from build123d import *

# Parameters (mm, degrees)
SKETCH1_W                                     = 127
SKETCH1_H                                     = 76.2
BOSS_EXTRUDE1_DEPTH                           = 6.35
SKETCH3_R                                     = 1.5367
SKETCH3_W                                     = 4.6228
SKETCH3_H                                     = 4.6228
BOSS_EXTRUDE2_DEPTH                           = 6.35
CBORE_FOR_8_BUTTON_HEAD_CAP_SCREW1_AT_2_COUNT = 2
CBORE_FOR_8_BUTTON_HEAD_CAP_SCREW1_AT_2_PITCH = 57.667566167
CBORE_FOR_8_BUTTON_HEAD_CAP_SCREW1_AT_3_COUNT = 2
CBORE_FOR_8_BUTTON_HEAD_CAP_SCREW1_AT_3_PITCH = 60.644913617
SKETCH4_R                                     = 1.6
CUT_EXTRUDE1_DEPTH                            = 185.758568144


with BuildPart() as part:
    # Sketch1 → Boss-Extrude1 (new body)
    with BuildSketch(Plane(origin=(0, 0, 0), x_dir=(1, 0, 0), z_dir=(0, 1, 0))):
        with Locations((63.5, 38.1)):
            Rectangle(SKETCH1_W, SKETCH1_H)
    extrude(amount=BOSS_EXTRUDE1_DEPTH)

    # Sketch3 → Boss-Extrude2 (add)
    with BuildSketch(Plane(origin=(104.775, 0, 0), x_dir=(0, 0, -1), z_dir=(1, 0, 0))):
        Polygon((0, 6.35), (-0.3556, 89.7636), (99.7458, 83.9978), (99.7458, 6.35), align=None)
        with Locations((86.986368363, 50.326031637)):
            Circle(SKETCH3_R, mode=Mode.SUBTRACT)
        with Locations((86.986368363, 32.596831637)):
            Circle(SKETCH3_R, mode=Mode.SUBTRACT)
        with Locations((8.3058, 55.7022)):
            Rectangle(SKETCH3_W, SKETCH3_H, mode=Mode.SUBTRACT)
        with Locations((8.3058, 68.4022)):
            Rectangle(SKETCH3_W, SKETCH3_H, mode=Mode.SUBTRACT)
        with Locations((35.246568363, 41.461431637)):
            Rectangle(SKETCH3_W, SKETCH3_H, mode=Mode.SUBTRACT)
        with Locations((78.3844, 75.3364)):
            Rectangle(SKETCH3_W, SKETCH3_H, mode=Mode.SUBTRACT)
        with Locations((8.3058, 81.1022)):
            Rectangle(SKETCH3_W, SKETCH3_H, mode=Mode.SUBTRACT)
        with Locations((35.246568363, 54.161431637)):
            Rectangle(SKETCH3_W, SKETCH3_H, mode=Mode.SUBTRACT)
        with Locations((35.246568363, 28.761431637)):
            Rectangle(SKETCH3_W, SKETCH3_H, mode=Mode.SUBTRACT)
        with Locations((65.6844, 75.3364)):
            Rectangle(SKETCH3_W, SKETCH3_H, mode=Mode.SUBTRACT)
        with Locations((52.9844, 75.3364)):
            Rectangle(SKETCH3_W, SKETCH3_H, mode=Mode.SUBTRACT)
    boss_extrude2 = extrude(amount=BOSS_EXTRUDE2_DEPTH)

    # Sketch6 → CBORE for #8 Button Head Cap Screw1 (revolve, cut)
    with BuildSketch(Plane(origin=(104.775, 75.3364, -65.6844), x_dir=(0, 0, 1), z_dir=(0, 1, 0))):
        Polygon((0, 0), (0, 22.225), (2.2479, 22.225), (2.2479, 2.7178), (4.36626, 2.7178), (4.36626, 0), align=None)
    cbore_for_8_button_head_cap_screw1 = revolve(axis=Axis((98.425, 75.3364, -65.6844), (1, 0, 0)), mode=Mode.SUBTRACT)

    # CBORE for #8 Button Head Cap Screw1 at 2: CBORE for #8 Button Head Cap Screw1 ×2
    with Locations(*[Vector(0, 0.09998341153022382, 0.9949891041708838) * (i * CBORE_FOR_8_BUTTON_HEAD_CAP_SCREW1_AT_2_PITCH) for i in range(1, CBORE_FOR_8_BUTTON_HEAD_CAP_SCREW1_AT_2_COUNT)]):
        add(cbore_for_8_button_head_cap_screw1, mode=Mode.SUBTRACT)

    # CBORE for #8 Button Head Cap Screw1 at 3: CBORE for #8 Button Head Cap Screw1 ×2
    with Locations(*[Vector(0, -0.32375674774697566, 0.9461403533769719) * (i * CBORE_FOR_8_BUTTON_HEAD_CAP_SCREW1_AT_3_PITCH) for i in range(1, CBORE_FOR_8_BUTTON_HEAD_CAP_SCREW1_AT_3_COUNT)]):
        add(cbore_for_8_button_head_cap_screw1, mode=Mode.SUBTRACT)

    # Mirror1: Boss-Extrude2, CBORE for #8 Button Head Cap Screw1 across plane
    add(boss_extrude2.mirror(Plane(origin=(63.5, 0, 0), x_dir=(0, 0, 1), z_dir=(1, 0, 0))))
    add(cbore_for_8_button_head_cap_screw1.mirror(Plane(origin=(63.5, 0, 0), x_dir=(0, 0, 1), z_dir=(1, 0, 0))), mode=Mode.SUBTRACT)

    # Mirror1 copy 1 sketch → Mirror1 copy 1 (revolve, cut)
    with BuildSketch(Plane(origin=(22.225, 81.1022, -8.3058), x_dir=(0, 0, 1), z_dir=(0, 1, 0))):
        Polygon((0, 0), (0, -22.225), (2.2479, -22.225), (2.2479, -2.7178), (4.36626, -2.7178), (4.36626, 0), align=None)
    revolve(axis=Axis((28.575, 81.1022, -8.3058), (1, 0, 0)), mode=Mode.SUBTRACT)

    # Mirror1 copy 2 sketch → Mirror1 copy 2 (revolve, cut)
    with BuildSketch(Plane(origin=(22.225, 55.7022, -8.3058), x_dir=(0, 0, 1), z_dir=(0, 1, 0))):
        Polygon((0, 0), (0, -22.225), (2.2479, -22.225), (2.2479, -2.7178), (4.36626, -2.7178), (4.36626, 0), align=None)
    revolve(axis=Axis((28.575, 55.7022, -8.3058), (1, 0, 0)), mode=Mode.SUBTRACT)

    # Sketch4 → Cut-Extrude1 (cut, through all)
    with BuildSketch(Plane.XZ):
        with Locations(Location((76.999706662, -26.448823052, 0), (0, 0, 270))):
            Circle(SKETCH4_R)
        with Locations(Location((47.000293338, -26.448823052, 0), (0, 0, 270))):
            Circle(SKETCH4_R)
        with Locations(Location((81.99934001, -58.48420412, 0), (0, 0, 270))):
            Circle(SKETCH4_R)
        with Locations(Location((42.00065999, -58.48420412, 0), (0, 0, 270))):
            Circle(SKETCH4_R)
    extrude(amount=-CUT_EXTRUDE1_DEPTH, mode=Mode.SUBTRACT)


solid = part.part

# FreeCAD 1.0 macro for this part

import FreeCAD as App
import Part
import Sketcher

V = App.Vector
Q = App.Units.Quantity

doc = App.newDocument("Part")
body = doc.addObject("PartDesign::Body", "Body")

# Sketch on XZ plane
sketch1 = doc.addObject("Sketcher::SketchObject", "Sketch")
body.addObject(sketch1)
sketch1.AttachmentSupport = (doc.XZ_Plane, [""])
sketch1.MapMode = "FlatFace"
sketch1.addGeometry(Part.LineSegment(V(0, -76, 0), V(0, 0, 0)), False)
sketch1.addGeometry(Part.LineSegment(V(0, 0, 0), V(127, 0, 0)), False)
sketch1.addGeometry(Part.LineSegment(V(127, 0, 0), V(127, -76, 0)), False)
sketch1.addGeometry(Part.LineSegment(V(127, -76, 0), V(0, -76, 0)), False)
sketch1.addConstraint(Sketcher.Constraint("Coincident", 0, 2, 1, 1))
sketch1.addConstraint(Sketcher.Constraint("Coincident", 1, 2, 2, 1))
sketch1.addConstraint(Sketcher.Constraint("Coincident", 2, 2, 3, 1))
sketch1.addConstraint(Sketcher.Constraint("Coincident", 3, 2, 0, 1))
sketch1.addConstraint(Sketcher.Constraint("Vertical", 0))
sketch1.addConstraint(Sketcher.Constraint("Horizontal", 1))
sketch1.addConstraint(Sketcher.Constraint("Vertical", 2))
sketch1.addConstraint(Sketcher.Constraint("Horizontal", 3))
sketch1.addConstraint(Sketcher.Constraint("Coincident", 0, 2, -1, 1))
sketch1.addConstraint(Sketcher.Constraint("DistanceX", 1, 1, 1, 2, Q("5 in")))
sketch1.addConstraint(Sketcher.Constraint("DistanceY", 0, 1, 0, 2, Q("3 in")))
pad1 = doc.addObject("PartDesign::Pad", "Pad")
body.addObject(pad1)
pad1.Profile = sketch1
pad1.Length = Q("0.25 in")
pad1.Reversed = True

# Sketch on YZ plane
sketch2 = doc.addObject("Sketcher::SketchObject", "Sketch001")
body.addObject(sketch2)
sketch2.AttachmentSupport = (doc.YZ_Plane, [""])
sketch2.MapMode = "FlatFace"
sketch2.AttachmentOffset = App.Placement(V(0, 0, 4.125 * 25.4), App.Rotation())
sketch2.addGeometry(Part.LineSegment(V(89.8, 0.4, 0), V(6.3, 0, 0)), False)
sketch2.addGeometry(Part.LineSegment(V(6.3, 0, 0), V(6.3, -99.7, 0)), False)
sketch2.addGeometry(Part.LineSegment(V(6.3, -99.7, 0), V(84, -99.7, 0)), False)
sketch2.addGeometry(Part.LineSegment(V(84, -99.7, 0), V(89.8, 0.4, 0)), False)
sketch2.addGeometry(Part.Circle(V(32.6, -87, 0), V(0, 0, 1), 1.5), False)
sketch2.addGeometry(Part.Circle(V(50.3, -87, 0), V(0, 0, 1), 1.5), False)
sketch2.addGeometry(Part.LineSegment(V(26.5, -32.9, 0), V(31.1, -32.9, 0)), False)
sketch2.addGeometry(Part.LineSegment(V(31.1, -32.9, 0), V(31.1, -37.6, 0)), False)
sketch2.addGeometry(Part.LineSegment(V(31.1, -37.6, 0), V(26.5, -37.6, 0)), False)
sketch2.addGeometry(Part.LineSegment(V(26.5, -37.6, 0), V(26.5, -32.9, 0)), False)
sketch2.addGeometry(Part.LineSegment(V(39.2, -32.9, 0), V(43.8, -32.9, 0)), False)
sketch2.addGeometry(Part.LineSegment(V(43.8, -32.9, 0), V(43.8, -37.6, 0)), False)
sketch2.addGeometry(Part.LineSegment(V(43.8, -37.6, 0), V(39.2, -37.6, 0)), False)
sketch2.addGeometry(Part.LineSegment(V(39.2, -37.6, 0), V(39.2, -32.9, 0)), False)
sketch2.addGeometry(Part.LineSegment(V(51.9, -32.9, 0), V(56.5, -32.9, 0)), False)
sketch2.addGeometry(Part.LineSegment(V(56.5, -32.9, 0), V(56.5, -37.6, 0)), False)
sketch2.addGeometry(Part.LineSegment(V(56.5, -37.6, 0), V(51.9, -37.6, 0)), False)
sketch2.addGeometry(Part.LineSegment(V(51.9, -37.6, 0), V(51.9, -32.9, 0)), False)
sketch2.addGeometry(Part.LineSegment(V(73, -76.1, 0), V(77.6, -76.1, 0)), False)
sketch2.addGeometry(Part.LineSegment(V(77.6, -76.1, 0), V(77.6, -80.7, 0)), False)
sketch2.addGeometry(Part.LineSegment(V(77.6, -80.7, 0), V(73, -80.7, 0)), False)
sketch2.addGeometry(Part.LineSegment(V(73, -80.7, 0), V(73, -76.1, 0)), False)
sketch2.addGeometry(Part.LineSegment(V(73, -63.4, 0), V(77.6, -63.4, 0)), False)
sketch2.addGeometry(Part.LineSegment(V(77.6, -63.4, 0), V(77.6, -68, 0)), False)
sketch2.addGeometry(Part.LineSegment(V(77.6, -68, 0), V(73, -68, 0)), False)
sketch2.addGeometry(Part.LineSegment(V(73, -68, 0), V(73, -63.4, 0)), False)
sketch2.addGeometry(Part.LineSegment(V(73, -50.7, 0), V(77.6, -50.7, 0)), False)
sketch2.addGeometry(Part.LineSegment(V(77.6, -50.7, 0), V(77.6, -55.3, 0)), False)
sketch2.addGeometry(Part.LineSegment(V(77.6, -55.3, 0), V(73, -55.3, 0)), False)
sketch2.addGeometry(Part.LineSegment(V(73, -55.3, 0), V(73, -50.7, 0)), False)
sketch2.addGeometry(Part.LineSegment(V(53.4, -6, 0), V(58, -6, 0)), False)
sketch2.addGeometry(Part.LineSegment(V(58, -6, 0), V(58, -10.6, 0)), False)
sketch2.addGeometry(Part.LineSegment(V(58, -10.6, 0), V(53.4, -10.6, 0)), False)
sketch2.addGeometry(Part.LineSegment(V(53.4, -10.6, 0), V(53.4, -6, 0)), False)
sketch2.addGeometry(Part.LineSegment(V(66.1, -6, 0), V(70.7, -6, 0)), False)
sketch2.addGeometry(Part.LineSegment(V(70.7, -6, 0), V(70.7, -10.6, 0)), False)
sketch2.addGeometry(Part.LineSegment(V(70.7, -10.6, 0), V(66.1, -10.6, 0)), False)
sketch2.addGeometry(Part.LineSegment(V(66.1, -10.6, 0), V(66.1, -6, 0)), False)
sketch2.addGeometry(Part.LineSegment(V(78.8, -6, 0), V(83.4, -6, 0)), False)
sketch2.addGeometry(Part.LineSegment(V(83.4, -6, 0), V(83.4, -10.6, 0)), False)
sketch2.addGeometry(Part.LineSegment(V(83.4, -10.6, 0), V(78.8, -10.6, 0)), False)
sketch2.addGeometry(Part.LineSegment(V(78.8, -10.6, 0), V(78.8, -6, 0)), False)
sketch2.addConstraint(Sketcher.Constraint("Coincident", 0, 2, 1, 1))
sketch2.addConstraint(Sketcher.Constraint("Coincident", 1, 2, 2, 1))
sketch2.addConstraint(Sketcher.Constraint("Coincident", 2, 2, 3, 1))
sketch2.addConstraint(Sketcher.Constraint("Coincident", 3, 2, 0, 1))
sketch2.addConstraint(Sketcher.Constraint("Coincident", 6, 2, 7, 1))
sketch2.addConstraint(Sketcher.Constraint("Coincident", 7, 2, 8, 1))
sketch2.addConstraint(Sketcher.Constraint("Coincident", 8, 2, 9, 1))
sketch2.addConstraint(Sketcher.Constraint("Coincident", 9, 2, 6, 1))
sketch2.addConstraint(Sketcher.Constraint("Coincident", 10, 2, 11, 1))
sketch2.addConstraint(Sketcher.Constraint("Coincident", 11, 2, 12, 1))
sketch2.addConstraint(Sketcher.Constraint("Coincident", 12, 2, 13, 1))
sketch2.addConstraint(Sketcher.Constraint("Coincident", 13, 2, 10, 1))
sketch2.addConstraint(Sketcher.Constraint("Coincident", 14, 2, 15, 1))
sketch2.addConstraint(Sketcher.Constraint("Coincident", 15, 2, 16, 1))
sketch2.addConstraint(Sketcher.Constraint("Coincident", 16, 2, 17, 1))
sketch2.addConstraint(Sketcher.Constraint("Coincident", 17, 2, 14, 1))
sketch2.addConstraint(Sketcher.Constraint("Coincident", 18, 2, 19, 1))
sketch2.addConstraint(Sketcher.Constraint("Coincident", 19, 2, 20, 1))
sketch2.addConstraint(Sketcher.Constraint("Coincident", 20, 2, 21, 1))
sketch2.addConstraint(Sketcher.Constraint("Coincident", 21, 2, 18, 1))
sketch2.addConstraint(Sketcher.Constraint("Coincident", 22, 2, 23, 1))
sketch2.addConstraint(Sketcher.Constraint("Coincident", 23, 2, 24, 1))
sketch2.addConstraint(Sketcher.Constraint("Coincident", 24, 2, 25, 1))
sketch2.addConstraint(Sketcher.Constraint("Coincident", 25, 2, 22, 1))
sketch2.addConstraint(Sketcher.Constraint("Coincident", 26, 2, 27, 1))
sketch2.addConstraint(Sketcher.Constraint("Coincident", 27, 2, 28, 1))
sketch2.addConstraint(Sketcher.Constraint("Coincident", 28, 2, 29, 1))
sketch2.addConstraint(Sketcher.Constraint("Coincident", 29, 2, 26, 1))
sketch2.addConstraint(Sketcher.Constraint("Coincident", 30, 2, 31, 1))
sketch2.addConstraint(Sketcher.Constraint("Coincident", 31, 2, 32, 1))
sketch2.addConstraint(Sketcher.Constraint("Coincident", 32, 2, 33, 1))
sketch2.addConstraint(Sketcher.Constraint("Coincident", 33, 2, 30, 1))
sketch2.addConstraint(Sketcher.Constraint("Coincident", 34, 2, 35, 1))
sketch2.addConstraint(Sketcher.Constraint("Coincident", 35, 2, 36, 1))
sketch2.addConstraint(Sketcher.Constraint("Coincident", 36, 2, 37, 1))
sketch2.addConstraint(Sketcher.Constraint("Coincident", 37, 2, 34, 1))
sketch2.addConstraint(Sketcher.Constraint("Coincident", 38, 2, 39, 1))
sketch2.addConstraint(Sketcher.Constraint("Coincident", 39, 2, 40, 1))
sketch2.addConstraint(Sketcher.Constraint("Coincident", 40, 2, 41, 1))
sketch2.addConstraint(Sketcher.Constraint("Coincident", 41, 2, 38, 1))
sketch2.addConstraint(Sketcher.Constraint("Vertical", 1))
sketch2.addConstraint(Sketcher.Constraint("Horizontal", 2))
sketch2.addConstraint(Sketcher.Constraint("Horizontal", 6))
sketch2.addConstraint(Sketcher.Constraint("Vertical", 7))
sketch2.addConstraint(Sketcher.Constraint("Horizontal", 8))
sketch2.addConstraint(Sketcher.Constraint("Vertical", 9))
sketch2.addConstraint(Sketcher.Constraint("Horizontal", 10))
sketch2.addConstraint(Sketcher.Constraint("Vertical", 11))
sketch2.addConstraint(Sketcher.Constraint("Horizontal", 12))
sketch2.addConstraint(Sketcher.Constraint("Vertical", 13))
sketch2.addConstraint(Sketcher.Constraint("Horizontal", 14))
sketch2.addConstraint(Sketcher.Constraint("Vertical", 15))
sketch2.addConstraint(Sketcher.Constraint("Horizontal", 16))
sketch2.addConstraint(Sketcher.Constraint("Vertical", 17))
sketch2.addConstraint(Sketcher.Constraint("Horizontal", 18))
sketch2.addConstraint(Sketcher.Constraint("Vertical", 19))
sketch2.addConstraint(Sketcher.Constraint("Horizontal", 20))
sketch2.addConstraint(Sketcher.Constraint("Vertical", 21))
sketch2.addConstraint(Sketcher.Constraint("Horizontal", 22))
sketch2.addConstraint(Sketcher.Constraint("Vertical", 23))
sketch2.addConstraint(Sketcher.Constraint("Horizontal", 24))
sketch2.addConstraint(Sketcher.Constraint("Vertical", 25))
sketch2.addConstraint(Sketcher.Constraint("Horizontal", 26))
sketch2.addConstraint(Sketcher.Constraint("Vertical", 27))
sketch2.addConstraint(Sketcher.Constraint("Horizontal", 28))
sketch2.addConstraint(Sketcher.Constraint("Vertical", 29))
sketch2.addConstraint(Sketcher.Constraint("Horizontal", 30))
sketch2.addConstraint(Sketcher.Constraint("Vertical", 31))
sketch2.addConstraint(Sketcher.Constraint("Horizontal", 32))
sketch2.addConstraint(Sketcher.Constraint("Vertical", 33))
sketch2.addConstraint(Sketcher.Constraint("Horizontal", 34))
sketch2.addConstraint(Sketcher.Constraint("Vertical", 35))
sketch2.addConstraint(Sketcher.Constraint("Horizontal", 36))
sketch2.addConstraint(Sketcher.Constraint("Vertical", 37))
sketch2.addConstraint(Sketcher.Constraint("Horizontal", 38))
sketch2.addConstraint(Sketcher.Constraint("Vertical", 39))
sketch2.addConstraint(Sketcher.Constraint("Horizontal", 40))
sketch2.addConstraint(Sketcher.Constraint("Vertical", 41))
sketch2.addConstraint(Sketcher.Constraint("Equal", 4, 5))
sketch2.addConstraint(Sketcher.Constraint("PointOnObject", 0, 2, -1))
sketch2.addConstraint(Sketcher.Constraint("Horizontal", 4, 3, 5, 3))
sketch2.addConstraint(Sketcher.Constraint("Horizontal", 9, 2, 10, 2))
sketch2.addConstraint(Sketcher.Constraint("Horizontal", 8, 2, 11, 2))
sketch2.addConstraint(Sketcher.Constraint("Horizontal", 13, 2, 14, 2))
sketch2.addConstraint(Sketcher.Constraint("Horizontal", 12, 2, 15, 2))
sketch2.addConstraint(Sketcher.Constraint("Horizontal", 33, 2, 34, 2))
sketch2.addConstraint(Sketcher.Constraint("Horizontal", 32, 2, 35, 2))
sketch2.addConstraint(Sketcher.Constraint("Horizontal", 37, 2, 38, 2))
sketch2.addConstraint(Sketcher.Constraint("Horizontal", 36, 2, 39, 2))
sketch2.addConstraint(Sketcher.Constraint("Vertical", 19, 2, 22, 2))
sketch2.addConstraint(Sketcher.Constraint("Vertical", 21, 2, 24, 2))
sketch2.addConstraint(Sketcher.Constraint("Vertical", 23, 2, 26, 2))
sketch2.addConstraint(Sketcher.Constraint("Vertical", 25, 2, 28, 2))
sketch2.addConstraint(Sketcher.Constraint("Equal", 8, 10))
sketch2.addConstraint(Sketcher.Constraint("Equal", 12, 14))
sketch2.addConstraint(Sketcher.Constraint("Equal", 16, 18))
sketch2.addConstraint(Sketcher.Constraint("Equal", 28, 30))
sketch2.addConstraint(Sketcher.Constraint("Equal", 32, 34))
sketch2.addConstraint(Sketcher.Constraint("Equal", 36, 38))
sketch2.addConstraint(Sketcher.Constraint("Equal", 40, 7))
sketch2.addConstraint(Sketcher.Constraint("Equal", 17, 19))
sketch2.addConstraint(Sketcher.Constraint("Equal", 21, 23))
sketch2.addConstraint(Sketcher.Constraint("Equal", 25, 27))
sketch2.addConstraint(Sketcher.Constraint("Equal", 29, 31))
sketch2.addConstraint(Sketcher.Constraint("Diameter", 4, Q("0.121 in")))
sketch2.addConstraint(Sketcher.Constraint("DistanceX", 6, 2, 14, 2, Q("1 in")))
sketch2.addConstraint(Sketcher.Constraint("DistanceX", 6, 2, 10, 2, Q("0.5 in")))
sketch2.addConstraint(Sketcher.Constraint("DistanceY", 18, 2, 22, 2, Q("0.5 in")))
sketch2.addConstraint(Sketcher.Constraint("DistanceY", 22, 2, 26, 2, Q("0.5 in")))
sketch2.addConstraint(Sketcher.Constraint("DistanceX", 30, 2, 34, 2, Q("0.5 in")))
sketch2.addConstraint(Sketcher.Constraint("DistanceX", 34, 2, 38, 2, Q("0.5 in")))
sketch2.addConstraint(Sketcher.Constraint("DistanceX", 2, 1, 2, 2, Q("3.057 in")))
sketch2.addConstraint(Sketcher.Constraint("DistanceX", 6, 1, 6, 2, Q("0.182 in")))
sketch2.addConstraint(Sketcher.Constraint("DistanceY", 1, 2, 1, 1, Q("3.927 in")))
sketch2.addConstraint(Sketcher.Constraint("DistanceX", -1, 1, 0, 2, Q("0.25 in")))
sketch2.addConstraint(Sketcher.Constraint("DistanceX", 6, 2, 4, 3, Q("0.06 in")))
sketch2.addConstraint(Sketcher.Constraint("DistanceX", 8, 2, 5, 3, Q("0.94 in")))
sketch2.addConstraint(Sketcher.Constraint("DistanceX", 18, 2, 2, 2, Q("0.25 in")))
sketch2.addConstraint(Sketcher.Constraint("DistanceY", 2, 2, 19, 2, Q("0.75 in")))
sketch2.addConstraint(Sketcher.Constraint("DistanceX", 34, 2, 3, 2, Q("0.75 in")))
sketch2.addConstraint(Sketcher.Constraint("DistanceY", 34, 2, 3, 2, Q("0.25 in")))
sketch2.addConstraint(Sketcher.Constraint("DistanceX", -1, 1, 3, 2, Q("3.534 in")))
sketch2.addConstraint(Sketcher.Constraint("DistanceY", -1, 1, 3, 2, Q("0.014 in")))
sketch2.addConstraint(Sketcher.Constraint("DistanceY", 4, 3, 6, 2, Q("2.128 in")))
sketch2.addConstraint(Sketcher.Constraint("DistanceX", -1, 1, 4, 3, 32.596832))
sketch2.addConstraint(Sketcher.Constraint("DistanceY", 4, 3, -1, 1, 86.986368))
pad2 = doc.addObject("PartDesign::Pad", "Pad001")
body.addObject(pad2)
pad2.Profile = sketch2
pad2.Length = Q("0.25 in")

# Sketch on XZ plane
sketch3 = doc.addObject("Sketcher::SketchObject", "Sketch002")
body.addObject(sketch3)
sketch3.AttachmentSupport = (doc.XZ_Plane, [""])
sketch3.MapMode = "FlatFace"
sketch3.AttachmentOffset = App.Placement(V(0, 0, -2.966 * 25.4), App.Rotation())
sketch3.addGeometry(Part.LineSegment(V(127, -65.7, 0), V(104.8, -65.7, 0)), False)
sketch3.addGeometry(Part.LineSegment(V(104.8, -65.7, 0), V(104.8, -61.3, 0)), False)
sketch3.addGeometry(Part.LineSegment(V(104.8, -61.3, 0), V(107.5, -61.3, 0)), False)
sketch3.addGeometry(Part.LineSegment(V(107.5, -61.3, 0), V(107.5, -63.4, 0)), False)
sketch3.addGeometry(Part.LineSegment(V(107.5, -63.4, 0), V(127, -63.4, 0)), False)
sketch3.addGeometry(Part.LineSegment(V(127, -63.4, 0), V(127, -65.7, 0)), False)
sketch3.addGeometry(Part.LineSegment(V(104.8, -65.7, 0), V(127, -65.7, 0)), True)  # axis
sketch3.addConstraint(Sketcher.Constraint("Coincident", 0, 2, 1, 1))
sketch3.addConstraint(Sketcher.Constraint("Coincident", 1, 2, 2, 1))
sketch3.addConstraint(Sketcher.Constraint("Coincident", 2, 2, 3, 1))
sketch3.addConstraint(Sketcher.Constraint("Coincident", 3, 2, 4, 1))
sketch3.addConstraint(Sketcher.Constraint("Coincident", 4, 2, 5, 1))
sketch3.addConstraint(Sketcher.Constraint("Coincident", 5, 2, 0, 1))
sketch3.addConstraint(Sketcher.Constraint("Horizontal", 0))
sketch3.addConstraint(Sketcher.Constraint("Vertical", 1))
sketch3.addConstraint(Sketcher.Constraint("Horizontal", 2))
sketch3.addConstraint(Sketcher.Constraint("Vertical", 3))
sketch3.addConstraint(Sketcher.Constraint("Horizontal", 4))
sketch3.addConstraint(Sketcher.Constraint("Vertical", 5))
sketch3.addConstraint(Sketcher.Constraint("Horizontal", 6))
sketch3.addConstraint(Sketcher.Constraint("Coincident", 6, 1, 0, 2))
sketch3.addConstraint(Sketcher.Constraint("Vertical", 4, 2, 6, 2))
sketch3.addConstraint(Sketcher.Constraint("DistanceX", -1, 1, 4, 2, Q("5 in")))
sketch3.addConstraint(Sketcher.Constraint("DistanceX", 0, 2, 0, 1, Q("0.875 in")))
sketch3.addConstraint(Sketcher.Constraint("DistanceX", 2, 1, 2, 2, Q("0.107 in")))
sketch3.addConstraint(Sketcher.Constraint("DistanceY", 1, 1, 1, 2, Q("0.1719 in")))
sketch3.addConstraint(Sketcher.Constraint("DistanceY", 3, 2, 3, 1, Q("0.0834 in")))
sketch3.addConstraint(Sketcher.Constraint("DistanceY", 0, 2, -1, 1, Q("2.586 in")))
groove = doc.addObject("PartDesign::Groove", "Groove")
body.addObject(groove)
groove.Profile = sketch3
groove.ReferenceAxis = (sketch3, ["Axis0"])
groove.Angle = 360
doc.recompute()

datumline = doc.addObject("PartDesign::Line", "DatumLine")
body.addObject(datumline)
datumline.Placement = App.Placement(V(0, 0, 0), App.Rotation(V(0, 0, 1), V(0, 0.099983412, 0.994989104)))
linearpattern = doc.addObject("PartDesign::LinearPattern", "LinearPattern")
body.addObject(linearpattern)
linearpattern.Originals = [groove]
linearpattern.Direction = (datumline, [""])
linearpattern.Mode = "offset"
linearpattern.Offset = 57.667566
linearpattern.Occurrences = 2
body.Tip = linearpattern
doc.recompute()

datumline2 = doc.addObject("PartDesign::Line", "DatumLine001")
body.addObject(datumline2)
datumline2.Placement = App.Placement(V(0, 0, 0), App.Rotation(V(0, 0, 1), V(0, -0.323756748, 0.946140353)))
linearpattern2 = doc.addObject("PartDesign::LinearPattern", "LinearPattern001")
body.addObject(linearpattern2)
linearpattern2.Originals = [groove]
linearpattern2.Direction = (datumline2, [""])
linearpattern2.Mode = "offset"
linearpattern2.Offset = 60.644914
linearpattern2.Occurrences = 2
body.Tip = linearpattern2
doc.recompute()

datumplane = doc.addObject("PartDesign::Plane", "DatumPlane")
body.addObject(datumplane)
datumplane.AttachmentSupport = (doc.YZ_Plane, [""])
datumplane.MapMode = "FlatFace"
datumplane.AttachmentOffset = App.Placement(V(0, 0, 2.5 * 25.4), App.Rotation())
mirrored = doc.addObject("PartDesign::Mirrored", "Mirrored")
body.addObject(mirrored)
mirrored.Originals = [pad2, groove]
mirrored.MirrorPlane = (datumplane, [""])
body.Tip = mirrored

# Sketch on XZ plane
sketch4 = doc.addObject("Sketcher::SketchObject", "Sketch003")
body.addObject(sketch4)
sketch4.AttachmentSupport = (doc.XZ_Plane, [""])
sketch4.MapMode = "FlatFace"
sketch4.AttachmentOffset = App.Placement(V(0, 0, -3.193 * 25.4), App.Rotation())
sketch4.addGeometry(Part.LineSegment(V(22.2, -8.3, 0), V(0, -8.3, 0)), False)
sketch4.addGeometry(Part.LineSegment(V(0, -8.3, 0), V(0, -6.1, 0)), False)
sketch4.addGeometry(Part.LineSegment(V(0, -6.1, 0), V(19.5, -6.1, 0)), False)
sketch4.addGeometry(Part.LineSegment(V(19.5, -6.1, 0), V(19.5, -3.9, 0)), False)
sketch4.addGeometry(Part.LineSegment(V(19.5, -3.9, 0), V(22.2, -3.9, 0)), False)
sketch4.addGeometry(Part.LineSegment(V(22.2, -3.9, 0), V(22.2, -8.3, 0)), False)
sketch4.addGeometry(Part.LineSegment(V(0, -8.3, 0), V(22.2, -8.3, 0)), True)  # axis
sketch4.addConstraint(Sketcher.Constraint("Coincident", 0, 2, 1, 1))
sketch4.addConstraint(Sketcher.Constraint("Coincident", 1, 2, 2, 1))
sketch4.addConstraint(Sketcher.Constraint("Coincident", 2, 2, 3, 1))
sketch4.addConstraint(Sketcher.Constraint("Coincident", 3, 2, 4, 1))
sketch4.addConstraint(Sketcher.Constraint("Coincident", 4, 2, 5, 1))
sketch4.addConstraint(Sketcher.Constraint("Coincident", 5, 2, 0, 1))
sketch4.addConstraint(Sketcher.Constraint("Horizontal", 0))
sketch4.addConstraint(Sketcher.Constraint("Vertical", 1))
sketch4.addConstraint(Sketcher.Constraint("Horizontal", 2))
sketch4.addConstraint(Sketcher.Constraint("Vertical", 3))
sketch4.addConstraint(Sketcher.Constraint("Horizontal", 4))
sketch4.addConstraint(Sketcher.Constraint("Vertical", 5))
sketch4.addConstraint(Sketcher.Constraint("Horizontal", 6))
sketch4.addConstraint(Sketcher.Constraint("Coincident", 6, 1, 0, 2))
sketch4.addConstraint(Sketcher.Constraint("PointOnObject", 0, 2, -2))
sketch4.addConstraint(Sketcher.Constraint("Vertical", 4, 2, 6, 2))
sketch4.addConstraint(Sketcher.Constraint("DistanceX", 0, 2, 0, 1, Q("0.875 in")))
sketch4.addConstraint(Sketcher.Constraint("DistanceX", 2, 1, 2, 2, Q("0.768 in")))
sketch4.addConstraint(Sketcher.Constraint("DistanceY", 1, 1, 1, 2, Q("0.0885 in")))
sketch4.addConstraint(Sketcher.Constraint("DistanceY", 3, 1, 3, 2, Q("0.0834 in")))
sketch4.addConstraint(Sketcher.Constraint("DistanceY", 0, 2, -1, 1, Q("0.327 in")))
groove2 = doc.addObject("PartDesign::Groove", "Groove001")
body.addObject(groove2)
groove2.Profile = sketch4
groove2.ReferenceAxis = (sketch4, ["Axis0"])
groove2.Angle = 360

# Sketch on XZ plane
sketch5 = doc.addObject("Sketcher::SketchObject", "Sketch004")
body.addObject(sketch5)
sketch5.AttachmentSupport = (doc.XZ_Plane, [""])
sketch5.MapMode = "FlatFace"
sketch5.AttachmentOffset = App.Placement(V(0, 0, -2.193 * 25.4), App.Rotation())
sketch5.addGeometry(Part.LineSegment(V(22.2, -8.3, 0), V(0, -8.3, 0)), False)
sketch5.addGeometry(Part.LineSegment(V(0, -8.3, 0), V(0, -6.1, 0)), False)
sketch5.addGeometry(Part.LineSegment(V(0, -6.1, 0), V(19.5, -6.1, 0)), False)
sketch5.addGeometry(Part.LineSegment(V(19.5, -6.1, 0), V(19.5, -3.9, 0)), False)
sketch5.addGeometry(Part.LineSegment(V(19.5, -3.9, 0), V(22.2, -3.9, 0)), False)
sketch5.addGeometry(Part.LineSegment(V(22.2, -3.9, 0), V(22.2, -8.3, 0)), False)
sketch5.addGeometry(Part.LineSegment(V(0, -8.3, 0), V(22.2, -8.3, 0)), True)  # axis
sketch5.addConstraint(Sketcher.Constraint("Coincident", 0, 2, 1, 1))
sketch5.addConstraint(Sketcher.Constraint("Coincident", 1, 2, 2, 1))
sketch5.addConstraint(Sketcher.Constraint("Coincident", 2, 2, 3, 1))
sketch5.addConstraint(Sketcher.Constraint("Coincident", 3, 2, 4, 1))
sketch5.addConstraint(Sketcher.Constraint("Coincident", 4, 2, 5, 1))
sketch5.addConstraint(Sketcher.Constraint("Coincident", 5, 2, 0, 1))
sketch5.addConstraint(Sketcher.Constraint("Horizontal", 0))
sketch5.addConstraint(Sketcher.Constraint("Vertical", 1))
sketch5.addConstraint(Sketcher.Constraint("Horizontal", 2))
sketch5.addConstraint(Sketcher.Constraint("Vertical", 3))
sketch5.addConstraint(Sketcher.Constraint("Horizontal", 4))
sketch5.addConstraint(Sketcher.Constraint("Vertical", 5))
sketch5.addConstraint(Sketcher.Constraint("Horizontal", 6))
sketch5.addConstraint(Sketcher.Constraint("Coincident", 6, 1, 0, 2))
sketch5.addConstraint(Sketcher.Constraint("PointOnObject", 0, 2, -2))
sketch5.addConstraint(Sketcher.Constraint("Vertical", 4, 2, 6, 2))
sketch5.addConstraint(Sketcher.Constraint("DistanceX", 0, 2, 0, 1, Q("0.875 in")))
sketch5.addConstraint(Sketcher.Constraint("DistanceX", 2, 1, 2, 2, Q("0.768 in")))
sketch5.addConstraint(Sketcher.Constraint("DistanceY", 1, 1, 1, 2, Q("0.0885 in")))
sketch5.addConstraint(Sketcher.Constraint("DistanceY", 3, 1, 3, 2, Q("0.0834 in")))
sketch5.addConstraint(Sketcher.Constraint("DistanceY", 0, 2, -1, 1, Q("0.327 in")))
groove3 = doc.addObject("PartDesign::Groove", "Groove002")
body.addObject(groove3)
groove3.Profile = sketch5
groove3.ReferenceAxis = (sketch5, ["Axis0"])
groove3.Angle = 360

# Sketch on XZ plane
sketch6 = doc.addObject("Sketcher::SketchObject", "Sketch005")
body.addObject(sketch6)
sketch6.AttachmentSupport = (doc.XZ_Plane, [""])
sketch6.MapMode = "FlatFace"
sketch6.addGeometry(Part.Circle(V(77, -26.4, 0), V(0, 0, 1), 1.6), False)
sketch6.addGeometry(Part.Circle(V(47, -26.4, 0), V(0, 0, 1), 1.6), False)
sketch6.addGeometry(Part.Circle(V(82, -58.5, 0), V(0, 0, 1), 1.6), False)
sketch6.addGeometry(Part.Circle(V(42, -58.5, 0), V(0, 0, 1), 1.6), False)
sketch6.addConstraint(Sketcher.Constraint("Equal", 0, 1))
sketch6.addConstraint(Sketcher.Constraint("Equal", 1, 2))
sketch6.addConstraint(Sketcher.Constraint("Equal", 2, 3))
sketch6.addConstraint(Sketcher.Constraint("Horizontal", 0, 3, 1, 3))
sketch6.addConstraint(Sketcher.Constraint("Horizontal", 2, 3, 3, 3))
sketch6.addConstraint(Sketcher.Constraint("Diameter", 0, 3.2))
sketch6.addConstraint(Sketcher.Constraint("DistanceX", -1, 1, 2, 3, 81.99934))
sketch6.addConstraint(Sketcher.Constraint("DistanceX", -1, 1, 3, 3, 42.00066))
sketch6.addConstraint(Sketcher.Constraint("DistanceY", 2, 3, 0, 3, 32.035381))
sketch6.addConstraint(Sketcher.Constraint("DistanceX", -1, 1, 0, 3, 76.999707))
sketch6.addConstraint(Sketcher.Constraint("DistanceY", 0, 3, -1, 1, 26.448823))
sketch6.addConstraint(Sketcher.Constraint("DistanceX", -1, 1, 1, 3, 47.000293))
pocket1 = doc.addObject("PartDesign::Pocket", "Pocket")
body.addObject(pocket1)
pocket1.Profile = sketch6
pocket1.Type = "ThroughAll"

doc.recompute()
